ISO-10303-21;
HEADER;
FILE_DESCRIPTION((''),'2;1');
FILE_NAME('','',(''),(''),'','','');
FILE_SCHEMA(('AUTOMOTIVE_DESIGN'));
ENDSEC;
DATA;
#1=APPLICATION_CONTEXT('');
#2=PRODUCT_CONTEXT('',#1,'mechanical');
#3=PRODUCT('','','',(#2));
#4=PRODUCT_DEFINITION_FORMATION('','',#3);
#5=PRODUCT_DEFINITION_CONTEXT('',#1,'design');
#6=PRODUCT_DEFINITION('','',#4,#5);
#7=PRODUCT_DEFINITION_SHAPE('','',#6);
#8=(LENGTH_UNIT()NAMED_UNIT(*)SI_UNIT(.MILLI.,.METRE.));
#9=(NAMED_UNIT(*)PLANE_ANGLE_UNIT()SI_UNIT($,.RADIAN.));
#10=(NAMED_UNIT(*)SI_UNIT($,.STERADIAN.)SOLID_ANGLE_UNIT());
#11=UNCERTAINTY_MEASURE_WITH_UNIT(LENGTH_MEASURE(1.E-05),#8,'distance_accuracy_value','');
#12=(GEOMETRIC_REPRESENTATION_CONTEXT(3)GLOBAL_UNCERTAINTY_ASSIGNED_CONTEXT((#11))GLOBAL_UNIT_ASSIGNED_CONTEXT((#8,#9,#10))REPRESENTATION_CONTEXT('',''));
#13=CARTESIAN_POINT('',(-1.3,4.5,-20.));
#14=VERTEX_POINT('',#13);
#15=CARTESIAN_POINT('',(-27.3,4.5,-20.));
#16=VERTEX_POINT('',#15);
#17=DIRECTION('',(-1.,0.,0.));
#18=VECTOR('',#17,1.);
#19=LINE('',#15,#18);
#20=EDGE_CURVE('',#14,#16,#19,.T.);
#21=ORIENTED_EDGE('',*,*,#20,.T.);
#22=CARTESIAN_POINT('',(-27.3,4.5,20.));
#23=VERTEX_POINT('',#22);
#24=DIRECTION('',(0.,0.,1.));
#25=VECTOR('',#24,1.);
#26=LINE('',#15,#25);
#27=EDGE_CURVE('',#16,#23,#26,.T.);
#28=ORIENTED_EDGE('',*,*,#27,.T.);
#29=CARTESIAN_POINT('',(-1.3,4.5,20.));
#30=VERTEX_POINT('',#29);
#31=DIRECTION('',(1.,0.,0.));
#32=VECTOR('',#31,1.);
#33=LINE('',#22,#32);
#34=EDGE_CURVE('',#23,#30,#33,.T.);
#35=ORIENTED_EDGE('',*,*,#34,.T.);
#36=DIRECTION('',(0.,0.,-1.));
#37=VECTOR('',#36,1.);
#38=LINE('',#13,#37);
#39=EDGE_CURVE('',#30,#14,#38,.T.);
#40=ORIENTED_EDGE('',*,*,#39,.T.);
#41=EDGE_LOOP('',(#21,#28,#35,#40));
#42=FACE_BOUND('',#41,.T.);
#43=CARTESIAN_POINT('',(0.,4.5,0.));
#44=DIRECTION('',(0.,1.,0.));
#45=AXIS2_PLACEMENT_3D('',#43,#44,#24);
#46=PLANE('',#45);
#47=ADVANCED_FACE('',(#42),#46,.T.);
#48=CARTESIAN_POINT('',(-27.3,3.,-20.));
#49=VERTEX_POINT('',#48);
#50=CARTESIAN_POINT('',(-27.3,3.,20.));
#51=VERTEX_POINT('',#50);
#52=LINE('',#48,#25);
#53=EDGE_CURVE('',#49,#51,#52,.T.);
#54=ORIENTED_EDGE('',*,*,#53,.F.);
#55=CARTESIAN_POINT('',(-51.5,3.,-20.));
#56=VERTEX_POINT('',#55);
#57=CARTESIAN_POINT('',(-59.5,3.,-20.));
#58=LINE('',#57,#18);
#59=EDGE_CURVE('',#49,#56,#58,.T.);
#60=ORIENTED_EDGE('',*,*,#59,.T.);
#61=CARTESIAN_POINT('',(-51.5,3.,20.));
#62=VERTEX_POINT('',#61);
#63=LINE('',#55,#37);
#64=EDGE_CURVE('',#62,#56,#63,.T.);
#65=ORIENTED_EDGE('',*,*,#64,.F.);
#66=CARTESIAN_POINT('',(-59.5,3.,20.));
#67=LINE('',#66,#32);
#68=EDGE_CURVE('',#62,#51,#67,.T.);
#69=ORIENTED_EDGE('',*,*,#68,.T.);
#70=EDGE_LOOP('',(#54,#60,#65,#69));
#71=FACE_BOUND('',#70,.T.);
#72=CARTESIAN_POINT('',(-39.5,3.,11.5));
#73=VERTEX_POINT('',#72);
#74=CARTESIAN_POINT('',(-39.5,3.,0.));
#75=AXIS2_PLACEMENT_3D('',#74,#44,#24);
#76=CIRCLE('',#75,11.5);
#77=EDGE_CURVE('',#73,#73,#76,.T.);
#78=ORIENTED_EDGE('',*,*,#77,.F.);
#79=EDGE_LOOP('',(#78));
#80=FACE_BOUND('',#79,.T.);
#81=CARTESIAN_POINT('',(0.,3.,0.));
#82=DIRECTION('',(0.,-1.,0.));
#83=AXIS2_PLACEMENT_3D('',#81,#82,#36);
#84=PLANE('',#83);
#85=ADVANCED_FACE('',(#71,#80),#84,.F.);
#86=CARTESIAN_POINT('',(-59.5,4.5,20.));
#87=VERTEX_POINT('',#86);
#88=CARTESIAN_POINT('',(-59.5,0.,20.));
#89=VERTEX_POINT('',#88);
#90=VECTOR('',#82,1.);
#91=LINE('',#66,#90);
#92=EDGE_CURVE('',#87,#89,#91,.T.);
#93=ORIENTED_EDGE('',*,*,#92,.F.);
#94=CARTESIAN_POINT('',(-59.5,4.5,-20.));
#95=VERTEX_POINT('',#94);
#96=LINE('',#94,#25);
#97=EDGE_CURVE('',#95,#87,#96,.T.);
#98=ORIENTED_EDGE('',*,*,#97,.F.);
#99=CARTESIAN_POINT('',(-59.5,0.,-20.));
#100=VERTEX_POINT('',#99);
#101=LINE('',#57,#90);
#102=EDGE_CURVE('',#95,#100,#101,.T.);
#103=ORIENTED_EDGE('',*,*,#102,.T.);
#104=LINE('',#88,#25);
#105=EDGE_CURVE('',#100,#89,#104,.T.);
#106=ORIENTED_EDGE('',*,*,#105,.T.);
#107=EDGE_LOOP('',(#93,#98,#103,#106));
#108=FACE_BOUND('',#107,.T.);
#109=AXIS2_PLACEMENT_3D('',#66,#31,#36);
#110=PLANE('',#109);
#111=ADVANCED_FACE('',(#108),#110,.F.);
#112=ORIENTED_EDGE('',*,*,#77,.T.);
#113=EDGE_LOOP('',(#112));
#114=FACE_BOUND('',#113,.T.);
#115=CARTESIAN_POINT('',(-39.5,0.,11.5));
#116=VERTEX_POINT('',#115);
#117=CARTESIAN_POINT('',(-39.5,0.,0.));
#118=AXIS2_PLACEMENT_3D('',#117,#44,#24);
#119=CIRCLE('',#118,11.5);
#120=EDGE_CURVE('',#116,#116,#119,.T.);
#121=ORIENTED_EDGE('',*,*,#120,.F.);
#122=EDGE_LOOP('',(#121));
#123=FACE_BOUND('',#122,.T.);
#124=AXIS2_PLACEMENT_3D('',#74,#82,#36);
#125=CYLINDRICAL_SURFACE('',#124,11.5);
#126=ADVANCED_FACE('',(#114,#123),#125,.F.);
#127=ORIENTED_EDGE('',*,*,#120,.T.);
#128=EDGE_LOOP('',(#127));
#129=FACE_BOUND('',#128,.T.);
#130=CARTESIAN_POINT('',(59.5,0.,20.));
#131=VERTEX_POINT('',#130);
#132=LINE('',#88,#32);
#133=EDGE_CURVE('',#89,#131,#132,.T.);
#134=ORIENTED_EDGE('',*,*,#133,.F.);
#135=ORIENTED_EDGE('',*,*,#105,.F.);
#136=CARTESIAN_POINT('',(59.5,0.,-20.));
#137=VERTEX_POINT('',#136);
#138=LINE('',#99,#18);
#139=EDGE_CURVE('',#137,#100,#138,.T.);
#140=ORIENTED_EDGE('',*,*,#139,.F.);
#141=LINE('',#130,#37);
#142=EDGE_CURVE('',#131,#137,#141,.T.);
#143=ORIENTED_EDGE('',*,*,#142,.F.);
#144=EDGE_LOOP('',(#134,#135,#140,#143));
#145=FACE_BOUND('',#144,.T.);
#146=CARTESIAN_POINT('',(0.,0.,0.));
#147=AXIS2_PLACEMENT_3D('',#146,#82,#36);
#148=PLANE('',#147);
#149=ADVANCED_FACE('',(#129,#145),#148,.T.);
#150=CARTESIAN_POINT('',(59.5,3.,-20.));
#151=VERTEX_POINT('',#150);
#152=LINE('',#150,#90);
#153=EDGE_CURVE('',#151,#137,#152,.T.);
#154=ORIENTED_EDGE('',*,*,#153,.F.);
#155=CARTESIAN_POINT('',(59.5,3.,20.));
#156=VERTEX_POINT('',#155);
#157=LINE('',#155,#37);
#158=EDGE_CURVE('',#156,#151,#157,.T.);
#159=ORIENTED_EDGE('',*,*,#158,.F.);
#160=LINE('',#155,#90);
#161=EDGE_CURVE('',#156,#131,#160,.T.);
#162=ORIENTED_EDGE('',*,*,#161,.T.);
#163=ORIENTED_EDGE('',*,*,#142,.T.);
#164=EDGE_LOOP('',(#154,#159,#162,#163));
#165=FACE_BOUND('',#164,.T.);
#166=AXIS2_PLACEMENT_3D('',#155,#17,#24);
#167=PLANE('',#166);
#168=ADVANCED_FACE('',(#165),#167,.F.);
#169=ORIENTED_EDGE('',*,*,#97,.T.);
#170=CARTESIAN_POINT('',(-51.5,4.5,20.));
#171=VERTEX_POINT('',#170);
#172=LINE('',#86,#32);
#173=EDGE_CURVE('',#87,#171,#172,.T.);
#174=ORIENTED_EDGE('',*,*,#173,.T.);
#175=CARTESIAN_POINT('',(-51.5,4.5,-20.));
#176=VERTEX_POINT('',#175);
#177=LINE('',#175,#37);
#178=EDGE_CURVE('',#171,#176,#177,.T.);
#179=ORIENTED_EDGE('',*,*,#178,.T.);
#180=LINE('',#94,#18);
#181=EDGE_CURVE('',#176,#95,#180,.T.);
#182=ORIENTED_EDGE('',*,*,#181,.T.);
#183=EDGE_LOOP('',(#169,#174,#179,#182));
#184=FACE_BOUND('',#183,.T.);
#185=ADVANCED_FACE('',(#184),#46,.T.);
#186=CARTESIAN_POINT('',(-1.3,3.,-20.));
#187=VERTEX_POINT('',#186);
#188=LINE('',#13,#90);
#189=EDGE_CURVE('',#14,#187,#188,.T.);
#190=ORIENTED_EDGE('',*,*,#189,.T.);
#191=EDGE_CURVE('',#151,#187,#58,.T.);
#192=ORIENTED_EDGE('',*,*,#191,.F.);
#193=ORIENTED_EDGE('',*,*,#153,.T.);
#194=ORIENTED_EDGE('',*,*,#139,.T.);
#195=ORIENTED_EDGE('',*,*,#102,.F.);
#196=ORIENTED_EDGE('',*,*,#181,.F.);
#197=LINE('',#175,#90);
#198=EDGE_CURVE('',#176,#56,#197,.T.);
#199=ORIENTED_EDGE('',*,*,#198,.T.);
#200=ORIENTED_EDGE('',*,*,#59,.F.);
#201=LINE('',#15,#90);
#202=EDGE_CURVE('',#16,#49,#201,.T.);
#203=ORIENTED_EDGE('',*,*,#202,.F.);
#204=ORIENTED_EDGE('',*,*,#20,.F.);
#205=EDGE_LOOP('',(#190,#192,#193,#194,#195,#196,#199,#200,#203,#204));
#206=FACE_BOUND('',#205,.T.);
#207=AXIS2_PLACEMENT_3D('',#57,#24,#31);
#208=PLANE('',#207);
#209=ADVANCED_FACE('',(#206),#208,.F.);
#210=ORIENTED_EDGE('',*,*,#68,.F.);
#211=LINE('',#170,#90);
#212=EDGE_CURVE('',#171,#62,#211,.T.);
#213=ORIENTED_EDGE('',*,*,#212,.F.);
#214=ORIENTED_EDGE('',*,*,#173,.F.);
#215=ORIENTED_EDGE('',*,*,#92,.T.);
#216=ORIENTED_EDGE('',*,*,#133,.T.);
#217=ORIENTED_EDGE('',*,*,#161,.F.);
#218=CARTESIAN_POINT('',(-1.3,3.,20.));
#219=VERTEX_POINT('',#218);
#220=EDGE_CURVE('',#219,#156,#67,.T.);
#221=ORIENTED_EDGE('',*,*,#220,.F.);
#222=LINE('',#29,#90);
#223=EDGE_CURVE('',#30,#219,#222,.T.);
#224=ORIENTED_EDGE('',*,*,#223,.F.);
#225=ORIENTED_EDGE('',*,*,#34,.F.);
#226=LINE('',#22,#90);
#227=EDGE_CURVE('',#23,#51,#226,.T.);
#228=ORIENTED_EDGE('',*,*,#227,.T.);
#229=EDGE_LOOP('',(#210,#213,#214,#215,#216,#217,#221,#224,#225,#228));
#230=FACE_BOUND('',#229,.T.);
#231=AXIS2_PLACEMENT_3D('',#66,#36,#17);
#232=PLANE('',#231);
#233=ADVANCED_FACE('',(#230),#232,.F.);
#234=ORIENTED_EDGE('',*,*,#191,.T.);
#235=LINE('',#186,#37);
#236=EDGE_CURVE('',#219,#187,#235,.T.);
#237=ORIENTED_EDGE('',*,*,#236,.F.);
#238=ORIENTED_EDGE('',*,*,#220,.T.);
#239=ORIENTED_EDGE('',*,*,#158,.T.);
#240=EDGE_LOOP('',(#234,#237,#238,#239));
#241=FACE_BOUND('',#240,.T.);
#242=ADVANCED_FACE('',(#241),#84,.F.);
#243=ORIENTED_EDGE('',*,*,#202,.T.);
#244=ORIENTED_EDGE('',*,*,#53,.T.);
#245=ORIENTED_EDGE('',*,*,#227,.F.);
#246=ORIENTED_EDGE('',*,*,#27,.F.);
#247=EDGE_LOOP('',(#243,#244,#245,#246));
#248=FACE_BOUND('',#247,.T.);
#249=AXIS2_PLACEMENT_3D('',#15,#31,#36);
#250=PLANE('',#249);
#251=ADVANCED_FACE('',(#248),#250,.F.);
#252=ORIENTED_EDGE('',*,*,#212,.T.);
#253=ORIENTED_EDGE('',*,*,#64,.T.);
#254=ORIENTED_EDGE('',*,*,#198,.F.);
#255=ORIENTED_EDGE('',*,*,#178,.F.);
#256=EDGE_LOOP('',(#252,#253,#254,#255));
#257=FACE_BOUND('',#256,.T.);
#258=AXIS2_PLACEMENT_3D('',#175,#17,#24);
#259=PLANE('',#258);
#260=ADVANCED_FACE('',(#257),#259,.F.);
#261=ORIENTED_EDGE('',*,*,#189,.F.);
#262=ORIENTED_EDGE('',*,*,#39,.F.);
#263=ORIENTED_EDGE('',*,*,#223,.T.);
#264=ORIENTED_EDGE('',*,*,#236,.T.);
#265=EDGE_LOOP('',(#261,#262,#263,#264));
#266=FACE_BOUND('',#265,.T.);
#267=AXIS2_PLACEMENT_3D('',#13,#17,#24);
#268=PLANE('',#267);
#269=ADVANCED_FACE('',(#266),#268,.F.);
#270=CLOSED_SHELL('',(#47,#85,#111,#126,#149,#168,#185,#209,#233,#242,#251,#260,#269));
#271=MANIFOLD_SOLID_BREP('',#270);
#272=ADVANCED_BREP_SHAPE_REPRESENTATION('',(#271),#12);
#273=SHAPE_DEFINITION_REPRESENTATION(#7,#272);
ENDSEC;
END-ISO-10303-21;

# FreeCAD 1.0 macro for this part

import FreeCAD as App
import Part
import Sketcher
from FreeCAD import Vector


def add_polygon(sketch, points):
    """Adds a closed chain of lines whose ends are joined by coincident constraints."""
    first, n = sketch.GeometryCount, len(points)
    for a, b in zip(points, points[1:] + points[:1]):
        sketch.addGeometry(Part.LineSegment(App.Vector(*a, 0), App.Vector(*b, 0)), False)
    for i in range(n):
        sketch.addConstraint(Sketcher.Constraint("Coincident", first + i, 2, first + (i + 1) % n, 1))

doc = App.newDocument("Part")
body = doc.addObject("PartDesign::Body", "Body")

sketch1 = body.newObject("Sketcher::SketchObject", "Sketch")
sketch1.AttachmentSupport = (doc.getObject("XZ_Plane"), [""])
sketch1.MapMode = "FlatFace"
add_polygon(sketch1, [(-59.5, -20), (-59.5, 20), (59.5, 20), (59.5, -20)])
sketch1.addGeometry(Part.Circle(Vector(-39.5, 0, 0), Vector(0, 0, 1), 11.5), False)
sketch1.addConstraint(Sketcher.Constraint("Vertical", 0))
sketch1.addConstraint(Sketcher.Constraint("Horizontal", 1))
sketch1.addConstraint(Sketcher.Constraint("Vertical", 2))
sketch1.addConstraint(Sketcher.Constraint("Horizontal", 3))
sketch1.addConstraint(Sketcher.Constraint("Symmetric", 0, 2, 2, 2, -1, 1))
sketch1.addConstraint(Sketcher.Constraint("PointOnObject", 4, 3, -1))
sketch1.addConstraint(Sketcher.Constraint("Diameter", 4, 23.0))
sketch1.addConstraint(Sketcher.Constraint("DistanceX", 1, 1, 1, 2, 119.0))
sketch1.addConstraint(Sketcher.Constraint("DistanceY", 0, 1, 0, 2, 40.0))
sketch1.addConstraint(Sketcher.Constraint("DistanceX", 0, 2, 4, 3, 20.0))
pad1 = body.newObject("PartDesign::Pad", "Pad")
pad1.Profile = sketch1
pad1.Length = 3
pad1.Reversed = True

sketch2 = body.newObject("Sketcher::SketchObject", "Sketch001")
sketch2.AttachmentSupport = (doc.getObject("XZ_Plane"), [""])
sketch2.MapMode = "FlatFace"
sketch2.AttachmentOffset = App.Placement(Vector(0, 0, -3), App.Rotation())
add_polygon(sketch2, [(-27.3, -20), (-27.3, 20), (-1.3, 20), (-1.3, -20)])
add_polygon(sketch2, [(-59.5, -20), (-59.5, 20), (-51.5, 20), (-51.5, -20)])
sketch2.addConstraint(Sketcher.Constraint("Vertical", 0))
sketch2.addConstraint(Sketcher.Constraint("Horizontal", 1))
sketch2.addConstraint(Sketcher.Constraint("Vertical", 2))
sketch2.addConstraint(Sketcher.Constraint("Horizontal", 3))
sketch2.addConstraint(Sketcher.Constraint("Vertical", 4))
sketch2.addConstraint(Sketcher.Constraint("Horizontal", 5))
sketch2.addConstraint(Sketcher.Constraint("Vertical", 6))
sketch2.addConstraint(Sketcher.Constraint("Horizontal", 7))
sketch2.addConstraint(Sketcher.Constraint("Horizontal", 1, 2, 4, 2))
sketch2.addConstraint(Sketcher.Constraint("Horizontal", 3, 2, 6, 2))
sketch2.addConstraint(Sketcher.Constraint("DistanceX", 1, 1, 1, 2, 26.0))
sketch2.addConstraint(Sketcher.Constraint("DistanceX", 5, 1, 5, 2, 8.0))
sketch2.addConstraint(Sketcher.Constraint("DistanceY", 0, 1, 0, 2, 40.0))
sketch2.addConstraint(Sketcher.Constraint("DistanceY", -1, 1, 0, 2, 20.0))
sketch2.addConstraint(Sketcher.Constraint("DistanceX", 0, 2, -1, 1, 27.3))
sketch2.addConstraint(Sketcher.Constraint("DistanceX", 4, 2, -1, 1, 59.5))
pad2 = body.newObject("PartDesign::Pad", "Pad001")
pad2.Profile = sketch2
pad2.Length = 1.5
pad2.Reversed = True

doc.recompute()
